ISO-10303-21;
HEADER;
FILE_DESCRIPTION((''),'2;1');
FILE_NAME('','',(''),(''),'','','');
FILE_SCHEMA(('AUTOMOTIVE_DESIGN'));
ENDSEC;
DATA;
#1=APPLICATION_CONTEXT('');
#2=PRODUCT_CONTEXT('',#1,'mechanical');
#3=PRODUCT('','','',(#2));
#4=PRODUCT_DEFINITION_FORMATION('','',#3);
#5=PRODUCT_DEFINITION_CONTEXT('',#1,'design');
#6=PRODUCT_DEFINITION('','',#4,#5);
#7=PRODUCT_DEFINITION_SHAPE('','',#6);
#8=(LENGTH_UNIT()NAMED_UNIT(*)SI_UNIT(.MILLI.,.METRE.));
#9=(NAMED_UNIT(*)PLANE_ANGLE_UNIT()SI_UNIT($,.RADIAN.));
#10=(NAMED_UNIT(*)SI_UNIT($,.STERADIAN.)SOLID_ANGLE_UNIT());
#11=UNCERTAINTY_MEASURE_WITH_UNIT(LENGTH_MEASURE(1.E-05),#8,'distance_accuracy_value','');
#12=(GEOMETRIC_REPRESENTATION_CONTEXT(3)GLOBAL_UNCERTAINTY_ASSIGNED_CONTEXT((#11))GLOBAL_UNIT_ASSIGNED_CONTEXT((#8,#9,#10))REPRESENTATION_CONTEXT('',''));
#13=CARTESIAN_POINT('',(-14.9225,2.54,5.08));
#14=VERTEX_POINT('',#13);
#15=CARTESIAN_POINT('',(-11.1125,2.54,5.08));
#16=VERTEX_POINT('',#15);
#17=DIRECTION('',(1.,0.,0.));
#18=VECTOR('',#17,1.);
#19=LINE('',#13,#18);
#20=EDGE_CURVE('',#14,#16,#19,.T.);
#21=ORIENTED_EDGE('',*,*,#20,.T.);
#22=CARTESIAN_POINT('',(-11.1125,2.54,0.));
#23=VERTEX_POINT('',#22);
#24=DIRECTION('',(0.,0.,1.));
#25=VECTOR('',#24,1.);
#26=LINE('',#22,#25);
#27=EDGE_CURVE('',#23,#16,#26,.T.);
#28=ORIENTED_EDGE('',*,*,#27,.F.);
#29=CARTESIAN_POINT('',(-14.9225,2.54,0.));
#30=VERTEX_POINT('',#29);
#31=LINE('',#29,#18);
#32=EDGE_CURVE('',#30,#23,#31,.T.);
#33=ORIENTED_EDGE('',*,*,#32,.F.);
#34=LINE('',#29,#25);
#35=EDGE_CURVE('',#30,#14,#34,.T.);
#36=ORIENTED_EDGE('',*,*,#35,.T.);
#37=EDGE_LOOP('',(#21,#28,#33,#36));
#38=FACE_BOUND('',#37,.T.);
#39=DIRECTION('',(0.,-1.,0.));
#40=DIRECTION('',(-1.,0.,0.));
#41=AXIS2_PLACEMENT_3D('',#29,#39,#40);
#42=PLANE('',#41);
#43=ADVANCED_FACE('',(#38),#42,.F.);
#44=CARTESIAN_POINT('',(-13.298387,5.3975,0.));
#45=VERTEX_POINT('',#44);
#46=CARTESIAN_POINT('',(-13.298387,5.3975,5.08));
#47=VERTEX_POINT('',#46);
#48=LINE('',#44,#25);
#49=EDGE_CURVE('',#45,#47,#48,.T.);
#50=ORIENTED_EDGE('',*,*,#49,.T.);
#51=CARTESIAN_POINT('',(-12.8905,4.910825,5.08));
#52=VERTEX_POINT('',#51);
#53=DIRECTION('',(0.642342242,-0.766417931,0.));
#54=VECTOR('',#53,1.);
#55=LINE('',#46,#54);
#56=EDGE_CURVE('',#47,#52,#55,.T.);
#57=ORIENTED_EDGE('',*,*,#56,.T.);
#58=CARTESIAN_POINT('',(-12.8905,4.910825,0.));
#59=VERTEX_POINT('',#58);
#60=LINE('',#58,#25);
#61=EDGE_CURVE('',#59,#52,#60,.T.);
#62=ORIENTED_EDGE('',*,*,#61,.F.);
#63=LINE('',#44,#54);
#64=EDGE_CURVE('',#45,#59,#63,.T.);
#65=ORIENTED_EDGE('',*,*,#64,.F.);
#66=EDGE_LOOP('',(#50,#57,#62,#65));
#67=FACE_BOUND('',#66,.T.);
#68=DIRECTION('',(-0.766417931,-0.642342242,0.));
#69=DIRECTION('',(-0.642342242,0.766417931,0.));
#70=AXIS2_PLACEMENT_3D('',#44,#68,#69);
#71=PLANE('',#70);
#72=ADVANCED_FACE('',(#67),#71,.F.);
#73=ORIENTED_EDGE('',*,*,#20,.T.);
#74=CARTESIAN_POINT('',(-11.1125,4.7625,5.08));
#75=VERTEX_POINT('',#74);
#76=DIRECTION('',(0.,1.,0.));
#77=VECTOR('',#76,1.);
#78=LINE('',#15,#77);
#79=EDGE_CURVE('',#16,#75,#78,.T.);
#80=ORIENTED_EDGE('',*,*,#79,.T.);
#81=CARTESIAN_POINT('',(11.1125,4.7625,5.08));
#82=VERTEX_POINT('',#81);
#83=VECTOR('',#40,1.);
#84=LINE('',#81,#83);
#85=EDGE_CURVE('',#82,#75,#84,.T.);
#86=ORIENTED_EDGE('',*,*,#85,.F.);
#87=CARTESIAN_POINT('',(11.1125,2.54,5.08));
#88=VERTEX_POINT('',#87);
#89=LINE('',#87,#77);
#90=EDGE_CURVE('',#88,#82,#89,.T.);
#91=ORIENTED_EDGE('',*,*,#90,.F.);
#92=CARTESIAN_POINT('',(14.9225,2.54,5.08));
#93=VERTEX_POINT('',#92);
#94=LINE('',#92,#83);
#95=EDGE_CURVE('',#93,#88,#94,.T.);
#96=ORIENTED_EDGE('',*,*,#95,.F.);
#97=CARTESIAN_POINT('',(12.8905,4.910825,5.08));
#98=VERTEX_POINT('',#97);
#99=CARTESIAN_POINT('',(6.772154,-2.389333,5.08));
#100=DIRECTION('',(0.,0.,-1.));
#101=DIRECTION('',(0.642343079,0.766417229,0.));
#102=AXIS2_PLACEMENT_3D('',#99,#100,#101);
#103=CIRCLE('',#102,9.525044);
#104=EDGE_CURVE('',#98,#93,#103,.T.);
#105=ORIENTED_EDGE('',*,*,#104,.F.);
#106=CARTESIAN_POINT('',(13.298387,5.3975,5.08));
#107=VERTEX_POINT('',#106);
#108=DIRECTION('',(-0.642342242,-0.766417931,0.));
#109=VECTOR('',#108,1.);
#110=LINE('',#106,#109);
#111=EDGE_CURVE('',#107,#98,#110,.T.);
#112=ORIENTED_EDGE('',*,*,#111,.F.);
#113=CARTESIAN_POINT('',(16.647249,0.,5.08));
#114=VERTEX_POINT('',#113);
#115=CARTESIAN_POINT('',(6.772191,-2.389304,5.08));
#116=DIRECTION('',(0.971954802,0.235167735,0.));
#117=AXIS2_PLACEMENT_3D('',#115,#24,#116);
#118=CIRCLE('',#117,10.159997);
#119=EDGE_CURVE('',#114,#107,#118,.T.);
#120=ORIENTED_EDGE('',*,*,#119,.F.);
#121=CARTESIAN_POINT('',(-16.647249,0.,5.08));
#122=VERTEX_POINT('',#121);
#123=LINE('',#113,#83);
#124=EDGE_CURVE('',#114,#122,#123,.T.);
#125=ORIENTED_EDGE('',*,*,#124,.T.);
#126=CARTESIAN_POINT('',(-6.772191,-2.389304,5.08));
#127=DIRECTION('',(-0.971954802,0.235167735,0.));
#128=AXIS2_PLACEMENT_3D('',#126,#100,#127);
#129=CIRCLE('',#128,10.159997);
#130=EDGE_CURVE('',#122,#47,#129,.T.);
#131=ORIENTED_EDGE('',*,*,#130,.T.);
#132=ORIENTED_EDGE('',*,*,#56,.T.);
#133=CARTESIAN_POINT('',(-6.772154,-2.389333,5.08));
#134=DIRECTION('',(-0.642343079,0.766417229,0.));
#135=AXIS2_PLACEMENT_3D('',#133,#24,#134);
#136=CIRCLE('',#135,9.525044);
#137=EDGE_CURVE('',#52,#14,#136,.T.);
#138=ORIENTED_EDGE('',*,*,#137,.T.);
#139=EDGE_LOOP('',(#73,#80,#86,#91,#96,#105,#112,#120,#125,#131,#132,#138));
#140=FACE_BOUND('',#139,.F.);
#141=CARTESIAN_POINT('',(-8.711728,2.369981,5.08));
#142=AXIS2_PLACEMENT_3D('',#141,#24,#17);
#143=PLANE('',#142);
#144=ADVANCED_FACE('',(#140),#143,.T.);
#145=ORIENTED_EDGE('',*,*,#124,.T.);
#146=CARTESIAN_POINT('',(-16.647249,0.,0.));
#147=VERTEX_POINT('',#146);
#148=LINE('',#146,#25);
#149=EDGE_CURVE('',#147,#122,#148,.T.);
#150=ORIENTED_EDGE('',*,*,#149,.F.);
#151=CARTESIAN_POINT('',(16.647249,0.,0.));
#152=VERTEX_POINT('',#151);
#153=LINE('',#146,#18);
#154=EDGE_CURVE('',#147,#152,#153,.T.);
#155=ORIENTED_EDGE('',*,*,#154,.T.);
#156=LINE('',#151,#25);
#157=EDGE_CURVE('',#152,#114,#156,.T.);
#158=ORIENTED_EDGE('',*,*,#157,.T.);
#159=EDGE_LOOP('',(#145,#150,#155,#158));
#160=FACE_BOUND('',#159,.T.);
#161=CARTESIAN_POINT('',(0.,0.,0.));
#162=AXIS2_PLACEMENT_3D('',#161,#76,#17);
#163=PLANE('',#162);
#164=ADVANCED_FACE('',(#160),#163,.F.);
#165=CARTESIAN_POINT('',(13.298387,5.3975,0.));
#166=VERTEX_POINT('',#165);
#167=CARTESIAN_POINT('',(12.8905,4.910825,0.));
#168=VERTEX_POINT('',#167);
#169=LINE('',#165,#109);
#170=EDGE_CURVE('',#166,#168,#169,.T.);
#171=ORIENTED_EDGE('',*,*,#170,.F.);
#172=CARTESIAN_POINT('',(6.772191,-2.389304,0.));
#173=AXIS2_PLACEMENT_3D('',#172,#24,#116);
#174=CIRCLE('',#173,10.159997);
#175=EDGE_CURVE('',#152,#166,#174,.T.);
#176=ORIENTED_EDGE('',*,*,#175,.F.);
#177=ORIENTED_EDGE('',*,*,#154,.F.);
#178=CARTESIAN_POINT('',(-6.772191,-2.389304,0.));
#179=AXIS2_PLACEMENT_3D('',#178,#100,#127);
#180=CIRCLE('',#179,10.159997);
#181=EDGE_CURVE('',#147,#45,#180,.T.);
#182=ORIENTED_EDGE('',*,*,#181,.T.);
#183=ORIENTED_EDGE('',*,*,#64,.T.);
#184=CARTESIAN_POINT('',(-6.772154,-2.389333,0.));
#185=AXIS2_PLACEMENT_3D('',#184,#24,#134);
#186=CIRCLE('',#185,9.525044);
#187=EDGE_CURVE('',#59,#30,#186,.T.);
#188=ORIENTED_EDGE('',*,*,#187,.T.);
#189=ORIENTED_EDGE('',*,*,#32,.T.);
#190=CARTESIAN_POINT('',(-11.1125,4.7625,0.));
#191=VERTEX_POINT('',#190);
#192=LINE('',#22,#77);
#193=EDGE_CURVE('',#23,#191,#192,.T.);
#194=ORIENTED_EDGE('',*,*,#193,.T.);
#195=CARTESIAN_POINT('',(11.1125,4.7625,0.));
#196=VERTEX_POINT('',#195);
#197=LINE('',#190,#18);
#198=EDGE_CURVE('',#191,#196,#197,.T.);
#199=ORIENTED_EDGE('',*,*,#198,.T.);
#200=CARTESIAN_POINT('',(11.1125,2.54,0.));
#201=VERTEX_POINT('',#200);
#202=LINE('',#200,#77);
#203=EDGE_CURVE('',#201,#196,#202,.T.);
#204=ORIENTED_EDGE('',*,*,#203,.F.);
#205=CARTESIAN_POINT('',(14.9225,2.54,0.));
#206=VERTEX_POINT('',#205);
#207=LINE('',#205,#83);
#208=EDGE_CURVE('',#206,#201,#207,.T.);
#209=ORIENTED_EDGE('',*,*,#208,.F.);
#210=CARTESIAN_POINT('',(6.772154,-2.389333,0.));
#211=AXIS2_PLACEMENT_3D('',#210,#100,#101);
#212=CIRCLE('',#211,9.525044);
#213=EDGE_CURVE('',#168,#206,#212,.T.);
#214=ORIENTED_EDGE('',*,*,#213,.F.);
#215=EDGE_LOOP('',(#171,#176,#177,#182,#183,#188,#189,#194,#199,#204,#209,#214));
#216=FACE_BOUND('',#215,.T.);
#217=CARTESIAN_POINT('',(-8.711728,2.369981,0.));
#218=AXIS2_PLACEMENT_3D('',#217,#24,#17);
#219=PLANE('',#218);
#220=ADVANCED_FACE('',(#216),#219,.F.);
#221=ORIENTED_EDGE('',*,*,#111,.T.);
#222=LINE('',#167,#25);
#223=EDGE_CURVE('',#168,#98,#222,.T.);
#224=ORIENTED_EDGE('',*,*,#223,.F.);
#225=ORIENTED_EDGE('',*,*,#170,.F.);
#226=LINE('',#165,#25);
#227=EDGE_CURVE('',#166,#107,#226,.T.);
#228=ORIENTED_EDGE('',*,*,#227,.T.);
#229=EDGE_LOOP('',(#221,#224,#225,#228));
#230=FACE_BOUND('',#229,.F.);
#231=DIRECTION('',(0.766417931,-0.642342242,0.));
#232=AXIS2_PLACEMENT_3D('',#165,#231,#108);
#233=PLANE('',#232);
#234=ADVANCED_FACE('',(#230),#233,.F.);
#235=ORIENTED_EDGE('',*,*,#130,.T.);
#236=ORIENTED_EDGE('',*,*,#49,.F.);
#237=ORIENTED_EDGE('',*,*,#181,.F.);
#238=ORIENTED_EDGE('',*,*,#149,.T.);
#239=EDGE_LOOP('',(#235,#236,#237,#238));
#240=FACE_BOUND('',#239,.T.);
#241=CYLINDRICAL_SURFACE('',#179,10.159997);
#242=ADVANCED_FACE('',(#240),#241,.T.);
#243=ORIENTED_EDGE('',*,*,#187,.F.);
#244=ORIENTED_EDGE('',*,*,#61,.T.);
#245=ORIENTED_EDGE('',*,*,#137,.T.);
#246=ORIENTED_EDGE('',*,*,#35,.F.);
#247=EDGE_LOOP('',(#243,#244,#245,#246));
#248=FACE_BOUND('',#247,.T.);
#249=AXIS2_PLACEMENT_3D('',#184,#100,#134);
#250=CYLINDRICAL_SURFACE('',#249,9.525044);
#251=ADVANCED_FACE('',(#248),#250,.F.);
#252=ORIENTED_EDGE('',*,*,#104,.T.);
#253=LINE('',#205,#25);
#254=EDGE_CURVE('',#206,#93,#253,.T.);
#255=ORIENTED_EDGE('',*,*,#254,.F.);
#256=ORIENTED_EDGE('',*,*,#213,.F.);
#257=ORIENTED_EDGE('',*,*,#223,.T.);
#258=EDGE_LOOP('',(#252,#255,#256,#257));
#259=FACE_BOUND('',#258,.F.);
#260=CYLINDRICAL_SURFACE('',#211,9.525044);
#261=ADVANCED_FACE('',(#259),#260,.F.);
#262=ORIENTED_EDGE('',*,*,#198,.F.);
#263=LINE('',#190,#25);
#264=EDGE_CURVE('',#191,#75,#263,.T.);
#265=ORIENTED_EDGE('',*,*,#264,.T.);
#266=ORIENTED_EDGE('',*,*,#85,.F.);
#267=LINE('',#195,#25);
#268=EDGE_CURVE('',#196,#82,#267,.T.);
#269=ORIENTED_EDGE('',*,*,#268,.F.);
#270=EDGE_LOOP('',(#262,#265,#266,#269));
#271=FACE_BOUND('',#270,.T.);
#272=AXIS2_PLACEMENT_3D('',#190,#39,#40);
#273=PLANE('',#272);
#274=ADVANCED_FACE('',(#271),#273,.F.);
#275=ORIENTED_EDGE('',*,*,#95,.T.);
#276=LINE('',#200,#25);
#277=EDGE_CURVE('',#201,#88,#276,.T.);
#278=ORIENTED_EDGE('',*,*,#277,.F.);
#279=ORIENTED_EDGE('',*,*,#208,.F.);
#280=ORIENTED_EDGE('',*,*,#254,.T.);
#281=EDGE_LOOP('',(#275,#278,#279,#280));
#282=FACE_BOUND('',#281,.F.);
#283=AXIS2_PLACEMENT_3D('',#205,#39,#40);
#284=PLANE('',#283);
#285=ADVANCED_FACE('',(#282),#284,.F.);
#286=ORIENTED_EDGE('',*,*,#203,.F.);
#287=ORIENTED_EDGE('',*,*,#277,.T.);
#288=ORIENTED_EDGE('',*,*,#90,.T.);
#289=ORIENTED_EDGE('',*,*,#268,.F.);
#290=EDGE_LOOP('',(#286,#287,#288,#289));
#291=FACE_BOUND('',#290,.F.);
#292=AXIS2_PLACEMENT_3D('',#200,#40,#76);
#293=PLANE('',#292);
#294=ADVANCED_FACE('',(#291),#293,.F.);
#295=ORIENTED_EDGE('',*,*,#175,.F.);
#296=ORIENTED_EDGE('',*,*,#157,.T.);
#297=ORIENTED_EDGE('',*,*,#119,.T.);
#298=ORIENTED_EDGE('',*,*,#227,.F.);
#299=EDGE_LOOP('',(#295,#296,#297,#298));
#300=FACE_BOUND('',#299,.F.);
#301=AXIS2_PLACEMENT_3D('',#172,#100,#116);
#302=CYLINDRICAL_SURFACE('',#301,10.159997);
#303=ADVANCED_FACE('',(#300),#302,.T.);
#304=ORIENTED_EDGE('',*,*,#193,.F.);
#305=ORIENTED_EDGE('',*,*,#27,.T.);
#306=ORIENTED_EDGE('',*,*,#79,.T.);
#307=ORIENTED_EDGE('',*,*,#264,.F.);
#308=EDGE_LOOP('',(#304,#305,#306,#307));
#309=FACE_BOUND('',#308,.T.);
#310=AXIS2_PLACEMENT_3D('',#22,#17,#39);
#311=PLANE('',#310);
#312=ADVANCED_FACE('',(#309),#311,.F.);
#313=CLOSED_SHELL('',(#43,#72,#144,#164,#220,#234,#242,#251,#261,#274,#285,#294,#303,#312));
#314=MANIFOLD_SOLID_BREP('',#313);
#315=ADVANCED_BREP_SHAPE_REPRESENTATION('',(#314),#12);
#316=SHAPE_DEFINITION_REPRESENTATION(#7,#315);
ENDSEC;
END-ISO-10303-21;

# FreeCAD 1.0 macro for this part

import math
import FreeCAD as App
import Part
import Sketcher

V = App.Vector
Q = App.Units.Quantity

doc = App.newDocument("Part")
body = doc.addObject("PartDesign::Body", "Body")

sketch1 = body.newObject("Sketcher::SketchObject", "Sketch")
sketch1.AttachmentSupport = (doc.getObject("XY_Plane"), [""])
sketch1.MapMode = "FlatFace"
sketch1.addGeometry(Part.LineSegment(V(0, 4.7625, 0), V(0, 0, 0)), False)
sketch1.addGeometry(Part.LineSegment(V(0, 0, 0), V(16.647249, 0, 0)), False)
sketch1.addGeometry(Part.ArcOfCircle(Part.Circle(V(6.772191, -2.389304, 0), V(0, 0, 1), 10.159997), math.radians(13.60151), math.radians(50.033297)), False)
sketch1.addGeometry(Part.LineSegment(V(13.298387, 5.3975, 0), V(12.8905, 4.910825, 0)), False)
sketch1.addGeometry(Part.ArcOfCircle(Part.Circle(V(6.772154, -2.389333, 0), V(0, 0, 1), 9.525044), math.radians(31.165568), math.radians(50.03324)), False)
sketch1.addGeometry(Part.LineSegment(V(14.9225, 2.54, 0), V(11.1125, 2.54, 0)), False)
sketch1.addGeometry(Part.LineSegment(V(11.1125, 2.54, 0), V(11.1125, 4.7625, 0)), False)
sketch1.addGeometry(Part.LineSegment(V(11.1125, 4.7625, 0), V(0, 4.7625, 0)), False)
sketch1.addConstraint(Sketcher.Constraint("Coincident", 0, 2, 1, 1))
sketch1.addConstraint(Sketcher.Constraint("Coincident", 1, 2, 2, 1))
sketch1.addConstraint(Sketcher.Constraint("Coincident", 2, 2, 3, 1))
sketch1.addConstraint(Sketcher.Constraint("Coincident", 3, 2, 4, 2))
sketch1.addConstraint(Sketcher.Constraint("Coincident", 4, 1, 5, 1))
sketch1.addConstraint(Sketcher.Constraint("Coincident", 5, 2, 6, 1))
sketch1.addConstraint(Sketcher.Constraint("Coincident", 6, 2, 7, 1))
sketch1.addConstraint(Sketcher.Constraint("Coincident", 7, 2, 0, 1))
sketch1.addConstraint(Sketcher.Constraint("Vertical", 0))
sketch1.addConstraint(Sketcher.Constraint("Horizontal", 1))
sketch1.addConstraint(Sketcher.Constraint("Horizontal", 5))
sketch1.addConstraint(Sketcher.Constraint("Vertical", 6))
sketch1.addConstraint(Sketcher.Constraint("Horizontal", 7))
sketch1.addConstraint(Sketcher.Constraint("Coincident", 0, 2, -1, 1))
sketch1.addConstraint(Sketcher.Constraint("Radius", 2, Q("0.3999999 in")))
sketch1.addConstraint(Sketcher.Constraint("DistanceX", 5, 2, 5, 1, Q("0.15 in")))
sketch1.addConstraint(Sketcher.Constraint("DistanceY", -1, 1, 4, 1, Q("0.1 in")))
sketch1.addConstraint(Sketcher.Constraint("DistanceX", 7, 2, 7, 1, Q("0.4375 in")))
sketch1.addConstraint(Sketcher.Constraint("DistanceY", 0, 2, 0, 1, Q("0.1875 in")))
sketch1.addConstraint(Sketcher.Constraint("DistanceX", 3, 2, 4, 1, Q("0.08 in")))
sketch1.addConstraint(Sketcher.Constraint("Distance", 3, Q("0.025 in")))
sketch1.addConstraint(Sketcher.Constraint("DistanceY", 6, 2, 2, 2, Q("0.025 in")))
sketch1.addConstraint(Sketcher.Constraint("Radius", 4, 9.525044))
sketch1.addConstraint(Sketcher.Constraint("DistanceX", 1, 1, 1, 2, 16.647249))
sketch1.addConstraint(Sketcher.Constraint("DistanceX", -1, 1, 2, 3, 6.772191))
pad1 = body.newObject("PartDesign::Pad", "Pad")
pad1.Profile = sketch1
pad1.Length = Q("0.2 in")
body2 = doc.addObject("PartDesign::Body", "Body001")
doc.recompute()

body2.BaseFeature = body
doc.recompute()

mirroring = doc.addObject("Part::Mirroring", "Mirroring")
mirroring.Source = body
mirroring.Base = V(0, 2.38125, 2.54)
mirroring.Normal = V(-1, 0, 0)
body3 = doc.addObject("PartDesign::Body", "Body002")
body3.BaseFeature = mirroring
boolean = body2.newObject("PartDesign::Boolean", "Boolean")
boolean.Type = "Fuse"
boolean.addObjects([body3])
doc.recompute()
mirroring.Visibility = False

doc.recompute()
